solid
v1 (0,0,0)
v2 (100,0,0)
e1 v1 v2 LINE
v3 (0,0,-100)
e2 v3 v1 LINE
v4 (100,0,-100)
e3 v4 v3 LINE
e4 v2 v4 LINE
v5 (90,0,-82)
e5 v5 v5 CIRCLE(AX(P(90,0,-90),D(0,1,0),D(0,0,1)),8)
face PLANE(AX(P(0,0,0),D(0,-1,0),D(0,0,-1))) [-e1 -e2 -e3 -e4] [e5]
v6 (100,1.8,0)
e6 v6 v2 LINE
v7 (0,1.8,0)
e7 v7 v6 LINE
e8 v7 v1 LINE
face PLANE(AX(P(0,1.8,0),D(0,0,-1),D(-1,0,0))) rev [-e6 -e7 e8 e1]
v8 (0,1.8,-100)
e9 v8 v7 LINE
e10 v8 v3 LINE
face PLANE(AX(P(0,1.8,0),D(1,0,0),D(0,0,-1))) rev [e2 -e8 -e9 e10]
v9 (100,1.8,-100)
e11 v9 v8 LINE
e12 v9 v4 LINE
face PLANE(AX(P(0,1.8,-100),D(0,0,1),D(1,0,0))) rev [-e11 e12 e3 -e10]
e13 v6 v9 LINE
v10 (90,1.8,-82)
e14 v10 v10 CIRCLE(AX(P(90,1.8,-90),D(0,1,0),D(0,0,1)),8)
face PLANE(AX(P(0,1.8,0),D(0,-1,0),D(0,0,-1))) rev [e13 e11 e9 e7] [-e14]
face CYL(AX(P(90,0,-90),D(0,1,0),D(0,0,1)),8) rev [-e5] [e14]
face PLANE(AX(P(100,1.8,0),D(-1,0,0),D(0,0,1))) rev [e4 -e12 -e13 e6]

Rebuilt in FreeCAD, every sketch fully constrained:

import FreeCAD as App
import Part
import Sketcher

V = App.Vector

doc = App.newDocument("Part")
body = doc.addObject("PartDesign::Body", "Body")

# Sketch on XZ plane
sketch1 = body.newObject("Sketcher::SketchObject", "Sketch")
sketch1.AttachmentSupport = (doc.getObject("XZ_Plane"), [""])
sketch1.MapMode = "FlatFace"
sketch1.addGeometry([
    Part.LineSegment(V(0, -100, 0), V(0, 0, 0)),
    Part.LineSegment(V(0, 0, 0), V(100, 0, 0)),
    Part.LineSegment(V(100, 0, 0), V(100, -100, 0)),
    Part.LineSegment(V(100, -100, 0), V(0, -100, 0)),
], False)
sketch1.addConstraint([
    Sketcher.Constraint("Coincident", 0, 2, 1, 1),
    Sketcher.Constraint("Coincident", 1, 2, 2, 1),
    Sketcher.Constraint("Coincident", 2, 2, 3, 1),
    Sketcher.Constraint("Coincident", 3, 2, 0, 1),
    Sketcher.Constraint("Vertical", 0),
    Sketcher.Constraint("Horizontal", 1),
    Sketcher.Constraint("Vertical", 2),
    Sketcher.Constraint("Horizontal", 3),
    Sketcher.Constraint("Coincident", 0, 2, -1, 1),
    Sketcher.Constraint("Equal", 3, 0),
    Sketcher.Constraint("DistanceX", 1, 1, 1, 2, 100.0),
])
pad1 = body.newObject("PartDesign::Pad", "Pad")
pad1.Profile = sketch1
pad1.Length = 1.8
pad1.Reversed = True

# Sketch on XZ plane
sketch2 = body.newObject("Sketcher::SketchObject", "Sketch001")
sketch2.AttachmentSupport = (doc.getObject("XZ_Plane"), [""])
sketch2.MapMode = "FlatFace"
sketch2.AttachmentOffset = App.Placement(V(0, 0, -1.8), App.Rotation())
sketch2.addGeometry(Part.Circle(V(90, -90, 0), V(0, 0, 1), 8), False)
sketch2.addConstraint([
    Sketcher.Constraint("Diameter", 0, 16.0),
    Sketcher.Constraint("DistanceX", -1, 1, 0, 3, 90.0),
    Sketcher.Constraint("DistanceY", 0, 3, -1, 1, 90.0),
])
pocket1 = body.newObject("PartDesign::Pocket", "Pocket")
pocket1.Profile = sketch2
pocket1.Type = "ThroughAll"
pocket1.Reversed = True

doc.recompute()
